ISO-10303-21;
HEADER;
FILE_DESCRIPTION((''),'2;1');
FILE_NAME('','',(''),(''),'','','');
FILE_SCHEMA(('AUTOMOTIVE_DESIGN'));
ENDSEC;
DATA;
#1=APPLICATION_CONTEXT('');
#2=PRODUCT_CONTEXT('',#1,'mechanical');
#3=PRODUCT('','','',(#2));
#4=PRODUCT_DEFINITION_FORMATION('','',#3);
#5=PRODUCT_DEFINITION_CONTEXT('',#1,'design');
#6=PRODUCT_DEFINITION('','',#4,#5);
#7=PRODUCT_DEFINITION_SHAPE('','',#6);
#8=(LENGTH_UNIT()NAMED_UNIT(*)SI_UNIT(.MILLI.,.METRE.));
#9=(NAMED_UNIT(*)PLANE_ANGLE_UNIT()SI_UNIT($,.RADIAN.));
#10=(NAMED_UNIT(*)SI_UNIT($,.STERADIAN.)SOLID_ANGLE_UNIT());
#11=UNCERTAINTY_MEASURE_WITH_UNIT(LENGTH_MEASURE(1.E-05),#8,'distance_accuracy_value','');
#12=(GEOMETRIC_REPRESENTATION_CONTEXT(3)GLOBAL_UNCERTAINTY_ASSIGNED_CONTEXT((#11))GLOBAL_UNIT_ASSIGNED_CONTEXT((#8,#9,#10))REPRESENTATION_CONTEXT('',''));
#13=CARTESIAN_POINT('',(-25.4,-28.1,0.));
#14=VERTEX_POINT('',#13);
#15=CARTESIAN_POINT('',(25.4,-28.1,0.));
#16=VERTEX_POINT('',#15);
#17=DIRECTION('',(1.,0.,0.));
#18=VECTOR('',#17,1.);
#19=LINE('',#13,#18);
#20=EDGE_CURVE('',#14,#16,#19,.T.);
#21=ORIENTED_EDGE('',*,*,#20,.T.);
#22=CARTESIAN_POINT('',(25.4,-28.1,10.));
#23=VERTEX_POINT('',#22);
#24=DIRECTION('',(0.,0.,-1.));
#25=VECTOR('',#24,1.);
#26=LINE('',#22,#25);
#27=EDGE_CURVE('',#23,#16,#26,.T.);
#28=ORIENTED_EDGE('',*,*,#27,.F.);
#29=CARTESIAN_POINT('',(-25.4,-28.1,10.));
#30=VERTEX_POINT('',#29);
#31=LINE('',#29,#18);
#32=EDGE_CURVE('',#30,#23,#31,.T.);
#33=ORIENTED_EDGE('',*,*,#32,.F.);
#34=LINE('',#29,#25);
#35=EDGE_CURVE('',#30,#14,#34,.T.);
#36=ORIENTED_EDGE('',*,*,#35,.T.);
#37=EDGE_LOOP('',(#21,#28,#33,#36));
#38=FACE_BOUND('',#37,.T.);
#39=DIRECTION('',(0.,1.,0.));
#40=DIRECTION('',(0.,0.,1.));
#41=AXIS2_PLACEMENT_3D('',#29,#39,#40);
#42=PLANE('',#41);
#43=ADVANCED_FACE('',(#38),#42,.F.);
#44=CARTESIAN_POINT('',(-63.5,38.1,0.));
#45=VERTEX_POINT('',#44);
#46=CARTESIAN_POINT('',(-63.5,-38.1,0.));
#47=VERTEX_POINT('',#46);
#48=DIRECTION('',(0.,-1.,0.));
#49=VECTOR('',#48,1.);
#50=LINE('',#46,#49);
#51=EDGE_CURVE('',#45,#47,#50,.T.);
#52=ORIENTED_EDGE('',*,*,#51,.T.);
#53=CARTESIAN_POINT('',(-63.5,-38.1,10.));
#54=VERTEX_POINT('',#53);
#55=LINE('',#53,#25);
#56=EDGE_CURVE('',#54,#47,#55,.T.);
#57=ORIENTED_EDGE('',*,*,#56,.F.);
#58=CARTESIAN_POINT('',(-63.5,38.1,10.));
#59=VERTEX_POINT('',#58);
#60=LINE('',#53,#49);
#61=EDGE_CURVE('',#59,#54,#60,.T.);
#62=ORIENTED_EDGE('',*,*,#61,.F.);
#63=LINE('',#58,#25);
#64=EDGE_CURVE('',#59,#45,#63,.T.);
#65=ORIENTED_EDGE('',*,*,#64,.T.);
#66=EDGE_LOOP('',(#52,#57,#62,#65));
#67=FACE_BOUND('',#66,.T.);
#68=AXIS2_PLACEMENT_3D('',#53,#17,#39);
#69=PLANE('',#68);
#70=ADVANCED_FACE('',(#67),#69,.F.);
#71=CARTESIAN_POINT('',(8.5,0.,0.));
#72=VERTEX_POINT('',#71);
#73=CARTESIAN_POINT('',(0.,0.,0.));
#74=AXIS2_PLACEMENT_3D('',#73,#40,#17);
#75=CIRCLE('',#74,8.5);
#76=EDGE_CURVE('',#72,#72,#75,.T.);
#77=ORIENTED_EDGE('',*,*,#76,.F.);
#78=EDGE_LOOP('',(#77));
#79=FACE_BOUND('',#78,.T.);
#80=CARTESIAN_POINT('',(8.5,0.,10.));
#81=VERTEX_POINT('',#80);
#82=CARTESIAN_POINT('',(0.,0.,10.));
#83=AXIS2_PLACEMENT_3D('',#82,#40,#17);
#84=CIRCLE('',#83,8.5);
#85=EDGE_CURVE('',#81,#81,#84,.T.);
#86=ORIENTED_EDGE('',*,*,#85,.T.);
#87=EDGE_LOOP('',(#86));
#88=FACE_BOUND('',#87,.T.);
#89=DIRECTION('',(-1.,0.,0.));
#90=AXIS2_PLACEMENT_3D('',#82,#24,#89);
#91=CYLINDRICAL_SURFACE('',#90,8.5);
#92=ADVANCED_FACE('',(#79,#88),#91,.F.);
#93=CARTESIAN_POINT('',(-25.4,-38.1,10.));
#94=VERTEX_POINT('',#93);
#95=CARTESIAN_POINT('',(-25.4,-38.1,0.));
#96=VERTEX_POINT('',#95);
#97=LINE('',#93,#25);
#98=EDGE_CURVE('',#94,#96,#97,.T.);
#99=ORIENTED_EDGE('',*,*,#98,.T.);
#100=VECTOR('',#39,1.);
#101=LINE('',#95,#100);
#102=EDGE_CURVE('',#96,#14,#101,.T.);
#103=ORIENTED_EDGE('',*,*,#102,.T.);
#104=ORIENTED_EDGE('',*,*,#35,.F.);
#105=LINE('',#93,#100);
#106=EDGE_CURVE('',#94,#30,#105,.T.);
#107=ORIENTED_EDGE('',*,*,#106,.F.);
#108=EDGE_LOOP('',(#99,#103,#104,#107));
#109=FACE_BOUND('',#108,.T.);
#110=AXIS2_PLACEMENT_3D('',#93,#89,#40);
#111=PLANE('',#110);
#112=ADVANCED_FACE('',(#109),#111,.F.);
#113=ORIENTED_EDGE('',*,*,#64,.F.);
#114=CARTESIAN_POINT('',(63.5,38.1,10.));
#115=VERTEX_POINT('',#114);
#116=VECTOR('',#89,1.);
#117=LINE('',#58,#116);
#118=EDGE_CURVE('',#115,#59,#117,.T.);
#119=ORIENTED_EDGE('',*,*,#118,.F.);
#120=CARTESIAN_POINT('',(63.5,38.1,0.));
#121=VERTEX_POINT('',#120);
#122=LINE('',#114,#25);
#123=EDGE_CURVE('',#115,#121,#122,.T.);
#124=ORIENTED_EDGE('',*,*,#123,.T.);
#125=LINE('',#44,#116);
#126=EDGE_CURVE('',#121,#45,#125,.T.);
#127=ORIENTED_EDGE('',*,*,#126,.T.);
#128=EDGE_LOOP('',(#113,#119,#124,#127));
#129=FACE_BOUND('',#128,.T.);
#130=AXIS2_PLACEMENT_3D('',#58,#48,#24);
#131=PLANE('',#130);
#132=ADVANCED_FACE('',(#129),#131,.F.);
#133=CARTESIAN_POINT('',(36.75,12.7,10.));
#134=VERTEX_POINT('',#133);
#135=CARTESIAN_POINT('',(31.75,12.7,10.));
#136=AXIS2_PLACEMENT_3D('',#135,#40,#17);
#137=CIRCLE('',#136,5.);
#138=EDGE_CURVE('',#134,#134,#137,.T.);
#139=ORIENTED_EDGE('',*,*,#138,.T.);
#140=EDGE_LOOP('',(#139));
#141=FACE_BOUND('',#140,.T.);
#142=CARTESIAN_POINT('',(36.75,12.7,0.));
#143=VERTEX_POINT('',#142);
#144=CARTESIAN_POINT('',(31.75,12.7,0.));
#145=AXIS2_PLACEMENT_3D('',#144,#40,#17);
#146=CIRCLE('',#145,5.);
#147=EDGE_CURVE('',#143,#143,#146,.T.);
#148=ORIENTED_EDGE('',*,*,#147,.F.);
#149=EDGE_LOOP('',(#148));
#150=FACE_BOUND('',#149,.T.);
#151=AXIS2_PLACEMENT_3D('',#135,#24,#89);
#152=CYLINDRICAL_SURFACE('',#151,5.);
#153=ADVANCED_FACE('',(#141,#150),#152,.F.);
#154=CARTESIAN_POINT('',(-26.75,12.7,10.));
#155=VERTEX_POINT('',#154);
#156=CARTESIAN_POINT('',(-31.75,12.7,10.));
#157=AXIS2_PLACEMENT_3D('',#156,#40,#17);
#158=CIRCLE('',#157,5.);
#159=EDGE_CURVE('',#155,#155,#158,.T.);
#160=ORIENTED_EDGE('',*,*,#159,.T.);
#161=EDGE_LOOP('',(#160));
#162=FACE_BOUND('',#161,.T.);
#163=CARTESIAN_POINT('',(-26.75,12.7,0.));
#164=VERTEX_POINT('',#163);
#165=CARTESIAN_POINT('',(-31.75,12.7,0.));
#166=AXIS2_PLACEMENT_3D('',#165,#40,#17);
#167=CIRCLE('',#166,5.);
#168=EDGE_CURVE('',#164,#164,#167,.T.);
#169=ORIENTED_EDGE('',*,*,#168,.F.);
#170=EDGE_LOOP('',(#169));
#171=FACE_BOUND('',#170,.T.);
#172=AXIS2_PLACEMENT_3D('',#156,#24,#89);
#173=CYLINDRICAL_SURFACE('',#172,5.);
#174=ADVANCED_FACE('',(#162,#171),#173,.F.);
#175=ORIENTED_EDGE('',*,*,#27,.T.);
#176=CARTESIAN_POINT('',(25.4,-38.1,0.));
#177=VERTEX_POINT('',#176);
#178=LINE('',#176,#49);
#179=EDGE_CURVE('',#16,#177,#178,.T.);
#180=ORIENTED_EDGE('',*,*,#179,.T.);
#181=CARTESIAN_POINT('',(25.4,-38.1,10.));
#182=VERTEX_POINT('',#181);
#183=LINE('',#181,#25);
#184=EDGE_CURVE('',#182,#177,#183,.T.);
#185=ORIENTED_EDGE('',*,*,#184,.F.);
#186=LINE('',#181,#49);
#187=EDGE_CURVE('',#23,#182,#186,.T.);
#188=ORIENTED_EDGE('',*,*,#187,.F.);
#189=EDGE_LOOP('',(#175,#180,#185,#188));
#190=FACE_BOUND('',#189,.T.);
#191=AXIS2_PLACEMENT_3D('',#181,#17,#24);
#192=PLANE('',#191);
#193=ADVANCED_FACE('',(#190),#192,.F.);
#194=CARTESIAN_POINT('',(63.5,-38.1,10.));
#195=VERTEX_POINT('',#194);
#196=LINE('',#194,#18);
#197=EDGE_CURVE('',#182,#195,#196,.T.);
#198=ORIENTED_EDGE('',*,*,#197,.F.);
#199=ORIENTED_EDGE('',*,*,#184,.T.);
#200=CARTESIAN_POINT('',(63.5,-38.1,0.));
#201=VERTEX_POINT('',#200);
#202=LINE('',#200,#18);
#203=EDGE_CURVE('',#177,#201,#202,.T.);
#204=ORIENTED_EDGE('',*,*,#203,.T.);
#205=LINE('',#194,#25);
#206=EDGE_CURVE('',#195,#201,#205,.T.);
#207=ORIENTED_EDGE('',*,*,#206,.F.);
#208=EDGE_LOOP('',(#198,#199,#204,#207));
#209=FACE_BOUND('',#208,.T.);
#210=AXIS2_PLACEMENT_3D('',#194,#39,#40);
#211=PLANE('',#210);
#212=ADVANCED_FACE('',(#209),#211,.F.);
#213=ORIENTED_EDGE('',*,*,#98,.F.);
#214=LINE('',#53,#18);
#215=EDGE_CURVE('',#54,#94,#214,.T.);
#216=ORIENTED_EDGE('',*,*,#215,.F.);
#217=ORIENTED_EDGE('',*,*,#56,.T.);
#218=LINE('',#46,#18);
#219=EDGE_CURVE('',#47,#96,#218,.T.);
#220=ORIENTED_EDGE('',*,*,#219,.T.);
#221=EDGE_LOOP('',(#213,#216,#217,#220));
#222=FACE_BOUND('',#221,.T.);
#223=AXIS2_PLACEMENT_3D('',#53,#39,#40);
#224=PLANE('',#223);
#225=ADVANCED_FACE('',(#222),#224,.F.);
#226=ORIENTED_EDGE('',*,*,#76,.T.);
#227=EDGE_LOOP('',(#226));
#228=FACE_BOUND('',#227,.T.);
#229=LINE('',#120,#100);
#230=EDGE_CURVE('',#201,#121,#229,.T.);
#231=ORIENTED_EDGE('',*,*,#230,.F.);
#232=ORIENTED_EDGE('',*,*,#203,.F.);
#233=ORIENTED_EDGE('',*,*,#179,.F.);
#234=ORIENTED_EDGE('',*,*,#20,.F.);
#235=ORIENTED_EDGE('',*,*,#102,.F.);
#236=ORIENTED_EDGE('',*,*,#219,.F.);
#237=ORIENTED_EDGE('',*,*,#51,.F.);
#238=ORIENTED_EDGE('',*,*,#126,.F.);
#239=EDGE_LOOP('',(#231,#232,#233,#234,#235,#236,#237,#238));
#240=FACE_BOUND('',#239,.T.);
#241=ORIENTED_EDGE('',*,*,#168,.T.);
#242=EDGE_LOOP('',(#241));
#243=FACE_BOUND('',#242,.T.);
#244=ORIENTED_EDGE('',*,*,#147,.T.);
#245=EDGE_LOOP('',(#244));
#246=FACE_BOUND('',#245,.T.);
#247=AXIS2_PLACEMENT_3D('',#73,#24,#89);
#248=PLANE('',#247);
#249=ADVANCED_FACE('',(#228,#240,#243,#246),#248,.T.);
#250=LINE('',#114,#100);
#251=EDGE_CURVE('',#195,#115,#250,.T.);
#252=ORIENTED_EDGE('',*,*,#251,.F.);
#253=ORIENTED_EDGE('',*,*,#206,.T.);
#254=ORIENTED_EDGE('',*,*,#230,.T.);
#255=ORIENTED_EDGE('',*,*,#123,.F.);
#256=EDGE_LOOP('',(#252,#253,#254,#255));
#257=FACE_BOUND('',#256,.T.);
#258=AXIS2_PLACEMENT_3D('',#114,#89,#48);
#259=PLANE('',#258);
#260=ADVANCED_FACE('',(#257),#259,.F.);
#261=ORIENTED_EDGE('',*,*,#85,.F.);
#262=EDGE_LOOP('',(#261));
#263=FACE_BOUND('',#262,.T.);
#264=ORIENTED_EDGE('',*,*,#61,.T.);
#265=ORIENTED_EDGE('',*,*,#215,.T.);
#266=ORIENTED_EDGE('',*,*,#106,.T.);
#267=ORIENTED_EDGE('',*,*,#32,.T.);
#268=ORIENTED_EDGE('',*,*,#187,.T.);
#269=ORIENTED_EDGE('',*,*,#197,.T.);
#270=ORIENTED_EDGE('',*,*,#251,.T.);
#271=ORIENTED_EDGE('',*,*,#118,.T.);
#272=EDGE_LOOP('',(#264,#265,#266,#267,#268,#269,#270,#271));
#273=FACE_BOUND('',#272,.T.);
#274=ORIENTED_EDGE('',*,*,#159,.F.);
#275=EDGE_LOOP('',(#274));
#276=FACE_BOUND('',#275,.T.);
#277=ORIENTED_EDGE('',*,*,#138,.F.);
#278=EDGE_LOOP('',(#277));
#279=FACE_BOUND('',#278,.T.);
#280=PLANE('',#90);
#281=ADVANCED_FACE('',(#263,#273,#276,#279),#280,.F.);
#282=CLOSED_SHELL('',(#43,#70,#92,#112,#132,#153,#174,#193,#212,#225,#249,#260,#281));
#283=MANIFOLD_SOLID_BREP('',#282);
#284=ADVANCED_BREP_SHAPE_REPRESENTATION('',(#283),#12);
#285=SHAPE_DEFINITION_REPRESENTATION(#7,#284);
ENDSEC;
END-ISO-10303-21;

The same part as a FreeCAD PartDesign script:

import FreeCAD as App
import Part
import Sketcher
Q = App.Units.Quantity


def add_polygon(sketch, points):
    """Adds a closed chain of lines whose ends are joined by coincident constraints."""
    first, n = sketch.GeometryCount, len(points)
    for a, b in zip(points, points[1:] + points[:1]):
        sketch.addGeometry(Part.LineSegment(App.Vector(*a, 0), App.Vector(*b, 0)), False)
    for i in range(n):
        sketch.addConstraint(Sketcher.Constraint("Coincident", first + i, 2, first + (i + 1) % n, 1))

doc = App.newDocument("Part")
body = doc.addObject("PartDesign::Body", "Body")

# Sketch on XY plane
sketch1 = body.newObject("Sketcher::SketchObject", "Sketch")
sketch1.AttachmentSupport = (doc.getObject("XY_Plane"), [""])
sketch1.MapMode = "FlatFace"
add_polygon(sketch1, [(-64, -38), (-25, -38), (-25, -28), (25, -28), (25, -38), (64, -38), (64, 38), (-64, 38)])  # lines 0-7
sketch1.addGeometry(Part.Circle(App.Vector(0, 0, 0), App.Vector(0, 0, 1), 8), False)  # 8
sketch1.addGeometry(Part.Circle(App.Vector(-32, 13, 0), App.Vector(0, 0, 1), 5), False)  # 9
sketch1.addGeometry(Part.Circle(App.Vector(32, 13, 0), App.Vector(0, 0, 1), 5), False)  # 10
sketch1.addConstraint(Sketcher.Constraint("Horizontal", 0))
sketch1.addConstraint(Sketcher.Constraint("Vertical", 1))
sketch1.addConstraint(Sketcher.Constraint("Horizontal", 2))
sketch1.addConstraint(Sketcher.Constraint("Vertical", 3))
sketch1.addConstraint(Sketcher.Constraint("Horizontal", 4))
sketch1.addConstraint(Sketcher.Constraint("Vertical", 5))
sketch1.addConstraint(Sketcher.Constraint("Horizontal", 6))
sketch1.addConstraint(Sketcher.Constraint("Vertical", 7))
sketch1.addConstraint(Sketcher.Constraint("Coincident", 8, 3, -1, 1))
sketch1.addConstraint(Sketcher.Constraint("Equal", 9, 10))
sketch1.addConstraint(Sketcher.Constraint("Symmetric", 4, 2, 6, 2, -1, 1))
sketch1.addConstraint(Sketcher.Constraint("Symmetric", 9, 3, 10, 3, -2))
sketch1.addConstraint(Sketcher.Constraint("Symmetric", 0, 2, 3, 2, -2))
sketch1.addConstraint(Sketcher.Constraint("DistanceX", 2, 1, 2, 2, Q("2 in")))
sketch1.addConstraint(Sketcher.Constraint("DistanceX", 6, 2, 6, 1, Q("5 in")))
sketch1.addConstraint(Sketcher.Constraint("DistanceY", 5, 1, 5, 2, Q("3 in")))
sketch1.addConstraint(Sketcher.Constraint("DistanceY", 0, 2, 9, 3, Q("2 in")))
sketch1.addConstraint(Sketcher.Constraint("DistanceX", 9, 3, 10, 3, Q("2.5 in")))
sketch1.addConstraint(Sketcher.Constraint("Diameter", 8, 17.0))
sketch1.addConstraint(Sketcher.Constraint("Diameter", 9, 10.0))
sketch1.addConstraint(Sketcher.Constraint("DistanceY", 1, 1, 1, 2, 10.0))
pad1 = body.newObject("PartDesign::Pad", "Pad")
pad1.Profile = sketch1
pad1.Length = 10

doc.recompute()
